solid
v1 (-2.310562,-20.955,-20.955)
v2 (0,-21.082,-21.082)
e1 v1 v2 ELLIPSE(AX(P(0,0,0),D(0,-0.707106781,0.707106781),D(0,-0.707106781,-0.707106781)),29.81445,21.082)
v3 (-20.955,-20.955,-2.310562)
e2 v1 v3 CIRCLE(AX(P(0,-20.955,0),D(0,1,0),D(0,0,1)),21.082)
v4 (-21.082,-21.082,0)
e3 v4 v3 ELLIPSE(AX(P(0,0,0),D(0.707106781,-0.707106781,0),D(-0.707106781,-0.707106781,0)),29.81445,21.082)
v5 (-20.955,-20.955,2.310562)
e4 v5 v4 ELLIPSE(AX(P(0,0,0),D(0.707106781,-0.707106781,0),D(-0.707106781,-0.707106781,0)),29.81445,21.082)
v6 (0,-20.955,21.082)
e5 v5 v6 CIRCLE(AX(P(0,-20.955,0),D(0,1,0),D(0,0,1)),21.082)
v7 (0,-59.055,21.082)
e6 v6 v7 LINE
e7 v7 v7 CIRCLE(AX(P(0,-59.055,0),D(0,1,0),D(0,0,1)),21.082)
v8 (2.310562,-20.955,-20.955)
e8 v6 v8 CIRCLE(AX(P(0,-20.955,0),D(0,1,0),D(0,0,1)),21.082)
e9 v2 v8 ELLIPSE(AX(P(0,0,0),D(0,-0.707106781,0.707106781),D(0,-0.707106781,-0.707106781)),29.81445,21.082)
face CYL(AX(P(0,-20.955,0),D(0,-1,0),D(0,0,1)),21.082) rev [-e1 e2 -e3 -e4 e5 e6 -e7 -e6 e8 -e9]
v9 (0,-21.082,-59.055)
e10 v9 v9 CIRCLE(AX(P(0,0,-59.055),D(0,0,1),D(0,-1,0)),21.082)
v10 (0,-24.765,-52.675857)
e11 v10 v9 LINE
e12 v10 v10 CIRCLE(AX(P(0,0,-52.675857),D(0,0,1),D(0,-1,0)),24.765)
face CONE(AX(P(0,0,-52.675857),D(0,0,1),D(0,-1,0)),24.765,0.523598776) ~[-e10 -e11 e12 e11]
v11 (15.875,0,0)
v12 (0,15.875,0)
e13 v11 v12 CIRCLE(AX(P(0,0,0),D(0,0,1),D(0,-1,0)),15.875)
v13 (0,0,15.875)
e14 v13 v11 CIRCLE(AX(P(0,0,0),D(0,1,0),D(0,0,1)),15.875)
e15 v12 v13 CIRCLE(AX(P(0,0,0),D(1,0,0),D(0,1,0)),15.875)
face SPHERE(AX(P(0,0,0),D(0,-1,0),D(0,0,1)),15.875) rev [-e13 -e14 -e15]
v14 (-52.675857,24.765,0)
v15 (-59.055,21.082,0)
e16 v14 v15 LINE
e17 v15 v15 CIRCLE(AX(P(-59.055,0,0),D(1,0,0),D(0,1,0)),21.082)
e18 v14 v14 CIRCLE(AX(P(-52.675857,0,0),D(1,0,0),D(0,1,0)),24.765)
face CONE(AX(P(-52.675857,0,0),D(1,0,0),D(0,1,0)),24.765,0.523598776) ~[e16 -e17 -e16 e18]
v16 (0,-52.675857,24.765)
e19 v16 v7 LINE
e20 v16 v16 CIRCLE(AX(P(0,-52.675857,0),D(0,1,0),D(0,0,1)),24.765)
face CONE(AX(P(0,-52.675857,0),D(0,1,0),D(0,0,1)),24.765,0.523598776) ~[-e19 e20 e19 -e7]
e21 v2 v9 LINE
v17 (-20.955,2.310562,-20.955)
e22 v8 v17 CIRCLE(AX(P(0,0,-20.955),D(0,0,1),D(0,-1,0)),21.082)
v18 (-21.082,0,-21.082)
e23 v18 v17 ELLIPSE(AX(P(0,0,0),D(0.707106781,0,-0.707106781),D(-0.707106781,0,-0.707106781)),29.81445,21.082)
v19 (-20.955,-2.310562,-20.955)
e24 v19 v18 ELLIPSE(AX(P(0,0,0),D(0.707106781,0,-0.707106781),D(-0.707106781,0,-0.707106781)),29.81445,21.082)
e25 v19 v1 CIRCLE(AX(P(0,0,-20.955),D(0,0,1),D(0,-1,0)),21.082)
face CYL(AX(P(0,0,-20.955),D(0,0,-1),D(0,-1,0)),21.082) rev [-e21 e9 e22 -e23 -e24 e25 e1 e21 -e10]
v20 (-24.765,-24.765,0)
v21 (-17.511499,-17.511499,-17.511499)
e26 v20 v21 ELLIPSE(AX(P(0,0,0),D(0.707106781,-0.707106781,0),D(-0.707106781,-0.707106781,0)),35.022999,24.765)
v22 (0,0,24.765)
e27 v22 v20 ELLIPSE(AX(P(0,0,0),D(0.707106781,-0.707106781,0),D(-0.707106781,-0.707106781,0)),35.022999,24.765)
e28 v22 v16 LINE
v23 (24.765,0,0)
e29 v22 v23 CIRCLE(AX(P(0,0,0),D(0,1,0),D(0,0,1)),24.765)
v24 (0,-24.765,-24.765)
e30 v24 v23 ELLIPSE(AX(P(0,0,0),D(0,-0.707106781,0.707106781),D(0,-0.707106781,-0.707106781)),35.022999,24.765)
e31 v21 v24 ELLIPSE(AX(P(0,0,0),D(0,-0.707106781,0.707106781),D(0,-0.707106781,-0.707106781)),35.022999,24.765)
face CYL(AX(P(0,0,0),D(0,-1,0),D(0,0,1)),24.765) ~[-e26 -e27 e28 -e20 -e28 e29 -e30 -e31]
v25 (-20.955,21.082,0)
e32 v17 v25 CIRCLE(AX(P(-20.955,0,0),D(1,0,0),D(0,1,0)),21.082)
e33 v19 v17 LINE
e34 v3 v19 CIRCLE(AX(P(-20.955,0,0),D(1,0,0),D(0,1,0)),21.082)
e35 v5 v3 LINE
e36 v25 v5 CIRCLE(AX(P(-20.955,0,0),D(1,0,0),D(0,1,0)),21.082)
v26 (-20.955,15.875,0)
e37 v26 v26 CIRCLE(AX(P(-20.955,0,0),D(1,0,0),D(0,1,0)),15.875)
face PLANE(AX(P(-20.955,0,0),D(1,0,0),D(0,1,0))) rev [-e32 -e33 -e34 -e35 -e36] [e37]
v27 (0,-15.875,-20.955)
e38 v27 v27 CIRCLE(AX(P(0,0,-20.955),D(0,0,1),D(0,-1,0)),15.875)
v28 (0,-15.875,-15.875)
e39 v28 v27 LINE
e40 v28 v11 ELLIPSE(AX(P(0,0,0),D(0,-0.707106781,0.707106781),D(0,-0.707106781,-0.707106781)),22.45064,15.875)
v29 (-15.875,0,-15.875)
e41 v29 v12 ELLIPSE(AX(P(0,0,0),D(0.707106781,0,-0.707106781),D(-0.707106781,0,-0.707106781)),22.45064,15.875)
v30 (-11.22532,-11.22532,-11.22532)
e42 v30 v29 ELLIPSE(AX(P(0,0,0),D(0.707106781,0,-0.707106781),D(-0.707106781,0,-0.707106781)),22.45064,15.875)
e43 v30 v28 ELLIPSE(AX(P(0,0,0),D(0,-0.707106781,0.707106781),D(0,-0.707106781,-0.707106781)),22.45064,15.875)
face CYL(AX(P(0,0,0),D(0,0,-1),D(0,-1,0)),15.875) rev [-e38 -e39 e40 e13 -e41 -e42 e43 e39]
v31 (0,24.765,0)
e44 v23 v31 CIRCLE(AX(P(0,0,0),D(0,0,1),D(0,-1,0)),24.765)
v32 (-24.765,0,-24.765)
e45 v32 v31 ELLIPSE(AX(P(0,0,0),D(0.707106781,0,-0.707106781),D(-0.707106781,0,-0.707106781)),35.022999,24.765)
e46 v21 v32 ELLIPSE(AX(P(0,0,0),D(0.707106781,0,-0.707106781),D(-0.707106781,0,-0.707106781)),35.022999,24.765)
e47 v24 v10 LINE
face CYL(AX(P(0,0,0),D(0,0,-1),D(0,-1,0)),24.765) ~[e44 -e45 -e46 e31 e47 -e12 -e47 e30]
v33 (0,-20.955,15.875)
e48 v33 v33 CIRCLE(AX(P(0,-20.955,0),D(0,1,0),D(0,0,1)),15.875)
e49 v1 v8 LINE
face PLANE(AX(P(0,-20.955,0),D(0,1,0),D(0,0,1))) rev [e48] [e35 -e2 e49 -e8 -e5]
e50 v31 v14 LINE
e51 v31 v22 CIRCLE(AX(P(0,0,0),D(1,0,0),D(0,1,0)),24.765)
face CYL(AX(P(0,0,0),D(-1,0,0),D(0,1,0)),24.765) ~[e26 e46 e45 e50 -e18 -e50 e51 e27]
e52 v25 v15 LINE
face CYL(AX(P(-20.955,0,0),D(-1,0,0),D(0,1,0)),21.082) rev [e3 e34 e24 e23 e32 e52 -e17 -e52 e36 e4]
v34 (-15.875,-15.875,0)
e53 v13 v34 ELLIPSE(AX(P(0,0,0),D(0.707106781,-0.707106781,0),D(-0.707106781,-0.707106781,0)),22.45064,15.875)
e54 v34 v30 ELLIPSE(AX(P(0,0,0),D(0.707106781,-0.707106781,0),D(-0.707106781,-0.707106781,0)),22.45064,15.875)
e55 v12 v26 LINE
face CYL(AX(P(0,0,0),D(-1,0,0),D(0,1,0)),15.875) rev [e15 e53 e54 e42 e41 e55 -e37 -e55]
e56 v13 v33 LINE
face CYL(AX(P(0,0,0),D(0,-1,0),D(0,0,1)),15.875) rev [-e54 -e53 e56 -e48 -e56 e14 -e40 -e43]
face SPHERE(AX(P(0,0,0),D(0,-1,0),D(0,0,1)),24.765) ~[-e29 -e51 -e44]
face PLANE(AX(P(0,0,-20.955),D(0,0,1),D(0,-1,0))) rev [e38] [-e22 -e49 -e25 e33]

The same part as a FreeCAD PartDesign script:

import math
import FreeCAD as App
import Part
import Sketcher
Q = App.Units.Quantity

doc = App.newDocument("Part")
params = doc.addObject("Spreadsheet::Sheet", "Params")
for row, (alias, value) in enumerate([
    ("sketch1_width", "3.3 in"),
    ("sketch1_radius", "0.975 in"),
    ("sketch1_height", "0.83 in"),
    ("revolution_angle", "360 deg"),
    ("sketch2_height", "3.3 in"),
    ("sketch2_radius", "0.975 in"),
    ("sketch2_width", "0.83 in"),
    ("revolution2_angle", "360 deg"),
    ("sketch3_width", "3.3 in"),
    ("sketch3_radius", "0.975 in"),
    ("sketch3_height", "0.83 in"),
    ("revolution3_angle", "360 deg"),
    ("sketch4_width", "1.5 in"),
    ("sketch4_radius", "0.625 in"),
    ("sketch4_width2", "2.95 in"),
    ("sketch4_height", "0.83 in"),
    ("groove_angle", "360 deg"),
    ("sketch5_height", "1.5 in"),
    ("sketch5_radius", "0.625 in"),
    ("sketch5_width", "0.83 in"),
    ("sketch5_height2", "2.95 in"),
    ("groove2_angle", "360 deg"),
    ("sketch6_width", "1.5 in"),
    ("sketch6_radius", "0.625 in"),
    ("sketch6_width2", "2.95 in"),
    ("sketch6_height", "0.83 in"),
    ("groove3_angle", "360 deg"),
], start=1):
    params.set(f"A{row}", alias)
    params.set(f"B{row}", "=" + value)
    params.setAlias(f"B{row}", alias)

body = doc.addObject("PartDesign::Body", "Body")

# Sketch on YZ plane
sketch1 = body.newObject("Sketcher::SketchObject", "Sketch")
sketch1.AttachmentSupport = (doc.getObject("YZ_Plane"), [""])
sketch1.MapMode = "FlatFace"
sketch1.addGeometry([
    Part.LineSegment(App.Vector(-53, 25, 0), App.Vector(-59, 21, 0)),  # 0
    Part.LineSegment(App.Vector(-59, 21, 0), App.Vector(-59, 0, 0)),  # 1
    Part.LineSegment(App.Vector(-59, 0, 0), App.Vector(25, 0, 0)),  # 2
    Part.ArcOfCircle(Part.Circle(App.Vector(0, 0, 0), App.Vector(0, 0, 1), 25), math.radians(0), math.radians(90)),  # 3
    Part.LineSegment(App.Vector(0, 25, 0), App.Vector(-53, 25, 0)),  # 4
], False)
sketch1.addConstraint([
    Sketcher.Constraint("Coincident", 0, 2, 1, 1),
    Sketcher.Constraint("Coincident", 1, 2, 2, 1),
    Sketcher.Constraint("Coincident", 2, 2, 3, 1),
    Sketcher.Constraint("Tangent", 3, 2, 4, 1),
    Sketcher.Constraint("Coincident", 4, 2, 0, 1),
    Sketcher.Constraint("Vertical", 1),
    Sketcher.Constraint("Horizontal", 2),
    Sketcher.Constraint("Horizontal", 4),
    Sketcher.Constraint("Coincident", 3, 3, -1, 1),
    Sketcher.Constraint("PointOnObject", 1, 2, -1),
    Sketcher.Constraint("DistanceX", 2, 1, 2, 2, Q("3.3 in")),
    Sketcher.Constraint("Angle", 0, Q("-150 deg")),
    Sketcher.Constraint("Radius", 3, Q("0.975 in")),
    Sketcher.Constraint("DistanceY", 1, 2, 1, 1, Q("0.83 in")),
])
sketch1.setExpression("Constraints[10]", "Params.sketch1_width")
sketch1.setExpression("Constraints[12]", "Params.sketch1_radius")
sketch1.setExpression("Constraints[13]", "Params.sketch1_height")
revolution = body.newObject("PartDesign::Revolution", "Revolution")
revolution.Profile = sketch1
revolution.ReferenceAxis = (sketch1, ["H_Axis"])
revolution.setExpression("Angle", "Params.revolution_angle")

# Sketch on YZ plane
sketch2 = body.newObject("Sketcher::SketchObject", "Sketch001")
sketch2.AttachmentSupport = (doc.getObject("YZ_Plane"), [""])
sketch2.MapMode = "FlatFace"
sketch2.addGeometry([
    Part.LineSegment(App.Vector(-25, -53, 0), App.Vector(-21, -59, 0)),  # 0
    Part.LineSegment(App.Vector(-21, -59, 0), App.Vector(0, -59, 0)),  # 1
    Part.LineSegment(App.Vector(0, -59, 0), App.Vector(0, 25, 0)),  # 2
    Part.ArcOfCircle(Part.Circle(App.Vector(0, 0, 0), App.Vector(0, 0, 1), 25), math.radians(90), math.radians(180)),  # 3
    Part.LineSegment(App.Vector(-25, 0, 0), App.Vector(-25, -53, 0)),  # 4
], False)
sketch2.addConstraint([
    Sketcher.Constraint("Coincident", 0, 2, 1, 1),
    Sketcher.Constraint("Coincident", 1, 2, 2, 1),
    Sketcher.Constraint("Coincident", 2, 2, 3, 1),
    Sketcher.Constraint("Tangent", 3, 2, 4, 1),
    Sketcher.Constraint("Coincident", 4, 2, 0, 1),
    Sketcher.Constraint("Horizontal", 1),
    Sketcher.Constraint("Vertical", 2),
    Sketcher.Constraint("Vertical", 4),
    Sketcher.Constraint("Coincident", 3, 3, -1, 1),
    Sketcher.Constraint("PointOnObject", 1, 2, -2),
    Sketcher.Constraint("DistanceY", 2, 1, 2, 2, Q("3.3 in")),
    Sketcher.Constraint("Angle", 0, Q("-60 deg")),
    Sketcher.Constraint("Radius", 3, Q("0.975 in")),
    Sketcher.Constraint("DistanceX", 1, 1, 1, 2, Q("0.83 in")),
])
sketch2.setExpression("Constraints[10]", "Params.sketch2_height")
sketch2.setExpression("Constraints[12]", "Params.sketch2_radius")
sketch2.setExpression("Constraints[13]", "Params.sketch2_width")
revolution2 = body.newObject("PartDesign::Revolution", "Revolution001")
revolution2.Profile = sketch2
revolution2.ReferenceAxis = (sketch2, ["V_Axis"])
revolution2.setExpression("Angle", "Params.revolution2_angle")

# Sketch on XY plane
sketch3 = body.newObject("Sketcher::SketchObject", "Sketch002")
sketch3.AttachmentSupport = (doc.getObject("XY_Plane"), [""])
sketch3.MapMode = "FlatFace"
sketch3.addGeometry([
    Part.LineSegment(App.Vector(-53, 25, 0), App.Vector(-59, 21, 0)),  # 0
    Part.LineSegment(App.Vector(-59, 21, 0), App.Vector(-59, 0, 0)),  # 1
    Part.LineSegment(App.Vector(-59, 0, 0), App.Vector(25, 0, 0)),  # 2
    Part.ArcOfCircle(Part.Circle(App.Vector(0, 0, 0), App.Vector(0, 0, 1), 25), math.radians(0), math.radians(90)),  # 3
    Part.LineSegment(App.Vector(0, 25, 0), App.Vector(-53, 25, 0)),  # 4
], False)
sketch3.addConstraint([
    Sketcher.Constraint("Coincident", 0, 2, 1, 1),
    Sketcher.Constraint("Coincident", 1, 2, 2, 1),
    Sketcher.Constraint("Coincident", 2, 2, 3, 1),
    Sketcher.Constraint("Tangent", 3, 2, 4, 1),
    Sketcher.Constraint("Coincident", 4, 2, 0, 1),
    Sketcher.Constraint("Vertical", 1),
    Sketcher.Constraint("Horizontal", 2),
    Sketcher.Constraint("Horizontal", 4),
    Sketcher.Constraint("Coincident", 3, 3, -1, 1),
    Sketcher.Constraint("PointOnObject", 1, 2, -1),
    Sketcher.Constraint("DistanceX", 2, 1, 2, 2, Q("3.3 in")),
    Sketcher.Constraint("Angle", 0, Q("-150 deg")),
    Sketcher.Constraint("Radius", 3, Q("0.975 in")),
    Sketcher.Constraint("DistanceY", 1, 2, 1, 1, Q("0.83 in")),
])
sketch3.setExpression("Constraints[10]", "Params.sketch3_width")
sketch3.setExpression("Constraints[12]", "Params.sketch3_radius")
sketch3.setExpression("Constraints[13]", "Params.sketch3_height")
revolution3 = body.newObject("PartDesign::Revolution", "Revolution002")
revolution3.Profile = sketch3
revolution3.ReferenceAxis = (sketch3, ["H_Axis"])
revolution3.setExpression("Angle", "Params.revolution3_angle")

# Sketch on YZ plane
sketch4 = body.newObject("Sketcher::SketchObject", "Sketch003")
sketch4.AttachmentSupport = (doc.getObject("YZ_Plane"), [""])
sketch4.MapMode = "FlatFace"
sketch4.addGeometry([
    Part.LineSegment(App.Vector(-21, 21, 0), App.Vector(-59, 21, 0)),  # 0
    Part.LineSegment(App.Vector(-59, 21, 0), App.Vector(-59, 0, 0)),  # 1
    Part.LineSegment(App.Vector(-59, 0, 0), App.Vector(16, 0, 0)),  # 2
    Part.ArcOfCircle(Part.Circle(App.Vector(0, 0, 0), App.Vector(0, 0, 1), 16), math.radians(0), math.radians(90)),  # 3
    Part.LineSegment(App.Vector(0, 16, 0), App.Vector(-21, 16, 0)),  # 4
    Part.LineSegment(App.Vector(-21, 16, 0), App.Vector(-21, 21, 0)),  # 5
], False)
sketch4.addConstraint([
    Sketcher.Constraint("Coincident", 0, 2, 1, 1),
    Sketcher.Constraint("Coincident", 1, 2, 2, 1),
    Sketcher.Constraint("Coincident", 2, 2, 3, 1),
    Sketcher.Constraint("Tangent", 3, 2, 4, 1),
    Sketcher.Constraint("Coincident", 4, 2, 5, 1),
    Sketcher.Constraint("Coincident", 5, 2, 0, 1),
    Sketcher.Constraint("Horizontal", 0),
    Sketcher.Constraint("Vertical", 1),
    Sketcher.Constraint("Horizontal", 2),
    Sketcher.Constraint("Horizontal", 4),
    Sketcher.Constraint("Vertical", 5),
    Sketcher.Constraint("Coincident", 3, 3, -1, 1),
    Sketcher.Constraint("PointOnObject", 1, 2, -1),
    Sketcher.Constraint("DistanceX", 0, 2, 0, 1, Q("1.5 in")),
    Sketcher.Constraint("Radius", 3, Q("0.625 in")),
    Sketcher.Constraint("DistanceX", 2, 1, 2, 2, Q("2.95 in")),
    Sketcher.Constraint("DistanceY", 1, 2, 1, 1, Q("0.83 in")),
])
sketch4.setExpression("Constraints[13]", "Params.sketch4_width")
sketch4.setExpression("Constraints[14]", "Params.sketch4_radius")
sketch4.setExpression("Constraints[15]", "Params.sketch4_width2")
sketch4.setExpression("Constraints[16]", "Params.sketch4_height")
groove = body.newObject("PartDesign::Groove", "Groove")
groove.Profile = sketch4
groove.ReferenceAxis = (sketch4, ["H_Axis"])
groove.setExpression("Angle", "Params.groove_angle")

# Sketch on YZ plane
sketch5 = body.newObject("Sketcher::SketchObject", "Sketch004")
sketch5.AttachmentSupport = (doc.getObject("YZ_Plane"), [""])
sketch5.MapMode = "FlatFace"
sketch5.addGeometry([
    Part.LineSegment(App.Vector(-21, -21, 0), App.Vector(-21, -59, 0)),  # 0
    Part.LineSegment(App.Vector(-21, -59, 0), App.Vector(0, -59, 0)),  # 1
    Part.LineSegment(App.Vector(0, -59, 0), App.Vector(0, 16, 0)),  # 2
    Part.ArcOfCircle(Part.Circle(App.Vector(0, 0, 0), App.Vector(0, 0, 1), 16), math.radians(90), math.radians(180)),  # 3
    Part.LineSegment(App.Vector(-16, 0, 0), App.Vector(-16, -21, 0)),  # 4
    Part.LineSegment(App.Vector(-16, -21, 0), App.Vector(-21, -21, 0)),  # 5
], False)
sketch5.addConstraint([
    Sketcher.Constraint("Coincident", 0, 2, 1, 1),
    Sketcher.Constraint("Coincident", 1, 2, 2, 1),
    Sketcher.Constraint("Coincident", 2, 2, 3, 1),
    Sketcher.Constraint("Tangent", 3, 2, 4, 1),
    Sketcher.Constraint("Coincident", 4, 2, 5, 1),
    Sketcher.Constraint("Coincident", 5, 2, 0, 1),
    Sketcher.Constraint("Vertical", 0),
    Sketcher.Constraint("Horizontal", 1),
    Sketcher.Constraint("Vertical", 2),
    Sketcher.Constraint("Vertical", 4),
    Sketcher.Constraint("Horizontal", 5),
    Sketcher.Constraint("Coincident", 3, 3, -1, 1),
    Sketcher.Constraint("PointOnObject", 1, 2, -2),
    Sketcher.Constraint("DistanceY", 0, 2, 0, 1, Q("1.5 in")),
    Sketcher.Constraint("Radius", 3, Q("0.625 in")),
    Sketcher.Constraint("DistanceX", 1, 1, 1, 2, Q("0.83 in")),
    Sketcher.Constraint("DistanceY", 2, 1, 2, 2, Q("2.95 in")),
])
sketch5.setExpression("Constraints[13]", "Params.sketch5_height")
sketch5.setExpression("Constraints[14]", "Params.sketch5_radius")
sketch5.setExpression("Constraints[15]", "Params.sketch5_width")
sketch5.setExpression("Constraints[16]", "Params.sketch5_height2")
groove2 = body.newObject("PartDesign::Groove", "Groove001")
groove2.Profile = sketch5
groove2.ReferenceAxis = (sketch5, ["V_Axis"])
groove2.setExpression("Angle", "Params.groove2_angle")

# Sketch on XY plane
sketch6 = body.newObject("Sketcher::SketchObject", "Sketch005")
sketch6.AttachmentSupport = (doc.getObject("XY_Plane"), [""])
sketch6.MapMode = "FlatFace"
sketch6.addGeometry([
    Part.LineSegment(App.Vector(-21, 21, 0), App.Vector(-59, 21, 0)),  # 0
    Part.LineSegment(App.Vector(-59, 21, 0), App.Vector(-59, 0, 0)),  # 1
    Part.LineSegment(App.Vector(-59, 0, 0), App.Vector(16, 0, 0)),  # 2
    Part.ArcOfCircle(Part.Circle(App.Vector(0, 0, 0), App.Vector(0, 0, 1), 16), math.radians(0), math.radians(90)),  # 3
    Part.LineSegment(App.Vector(0, 16, 0), App.Vector(-21, 16, 0)),  # 4
    Part.LineSegment(App.Vector(-21, 16, 0), App.Vector(-21, 21, 0)),  # 5
], False)
sketch6.addConstraint([
    Sketcher.Constraint("Coincident", 0, 2, 1, 1),
    Sketcher.Constraint("Coincident", 1, 2, 2, 1),
    Sketcher.Constraint("Coincident", 2, 2, 3, 1),
    Sketcher.Constraint("Tangent", 3, 2, 4, 1),
    Sketcher.Constraint("Coincident", 4, 2, 5, 1),
    Sketcher.Constraint("Coincident", 5, 2, 0, 1),
    Sketcher.Constraint("Horizontal", 0),
    Sketcher.Constraint("Vertical", 1),
    Sketcher.Constraint("Horizontal", 2),
    Sketcher.Constraint("Horizontal", 4),
    Sketcher.Constraint("Vertical", 5),
    Sketcher.Constraint("Coincident", 3, 3, -1, 1),
    Sketcher.Constraint("PointOnObject", 1, 2, -1),
    Sketcher.Constraint("DistanceX", 0, 2, 0, 1, Q("1.5 in")),
    Sketcher.Constraint("Radius", 3, Q("0.625 in")),
    Sketcher.Constraint("DistanceX", 2, 1, 2, 2, Q("2.95 in")),
    Sketcher.Constraint("DistanceY", 1, 2, 1, 1, Q("0.83 in")),
])
sketch6.setExpression("Constraints[13]", "Params.sketch6_width")
sketch6.setExpression("Constraints[14]", "Params.sketch6_radius")
sketch6.setExpression("Constraints[15]", "Params.sketch6_width2")
sketch6.setExpression("Constraints[16]", "Params.sketch6_height")
groove3 = body.newObject("PartDesign::Groove", "Groove002")
groove3.Profile = sketch6
groove3.ReferenceAxis = (sketch6, ["H_Axis"])
groove3.setExpression("Angle", "Params.groove3_angle")

doc.recompute()
